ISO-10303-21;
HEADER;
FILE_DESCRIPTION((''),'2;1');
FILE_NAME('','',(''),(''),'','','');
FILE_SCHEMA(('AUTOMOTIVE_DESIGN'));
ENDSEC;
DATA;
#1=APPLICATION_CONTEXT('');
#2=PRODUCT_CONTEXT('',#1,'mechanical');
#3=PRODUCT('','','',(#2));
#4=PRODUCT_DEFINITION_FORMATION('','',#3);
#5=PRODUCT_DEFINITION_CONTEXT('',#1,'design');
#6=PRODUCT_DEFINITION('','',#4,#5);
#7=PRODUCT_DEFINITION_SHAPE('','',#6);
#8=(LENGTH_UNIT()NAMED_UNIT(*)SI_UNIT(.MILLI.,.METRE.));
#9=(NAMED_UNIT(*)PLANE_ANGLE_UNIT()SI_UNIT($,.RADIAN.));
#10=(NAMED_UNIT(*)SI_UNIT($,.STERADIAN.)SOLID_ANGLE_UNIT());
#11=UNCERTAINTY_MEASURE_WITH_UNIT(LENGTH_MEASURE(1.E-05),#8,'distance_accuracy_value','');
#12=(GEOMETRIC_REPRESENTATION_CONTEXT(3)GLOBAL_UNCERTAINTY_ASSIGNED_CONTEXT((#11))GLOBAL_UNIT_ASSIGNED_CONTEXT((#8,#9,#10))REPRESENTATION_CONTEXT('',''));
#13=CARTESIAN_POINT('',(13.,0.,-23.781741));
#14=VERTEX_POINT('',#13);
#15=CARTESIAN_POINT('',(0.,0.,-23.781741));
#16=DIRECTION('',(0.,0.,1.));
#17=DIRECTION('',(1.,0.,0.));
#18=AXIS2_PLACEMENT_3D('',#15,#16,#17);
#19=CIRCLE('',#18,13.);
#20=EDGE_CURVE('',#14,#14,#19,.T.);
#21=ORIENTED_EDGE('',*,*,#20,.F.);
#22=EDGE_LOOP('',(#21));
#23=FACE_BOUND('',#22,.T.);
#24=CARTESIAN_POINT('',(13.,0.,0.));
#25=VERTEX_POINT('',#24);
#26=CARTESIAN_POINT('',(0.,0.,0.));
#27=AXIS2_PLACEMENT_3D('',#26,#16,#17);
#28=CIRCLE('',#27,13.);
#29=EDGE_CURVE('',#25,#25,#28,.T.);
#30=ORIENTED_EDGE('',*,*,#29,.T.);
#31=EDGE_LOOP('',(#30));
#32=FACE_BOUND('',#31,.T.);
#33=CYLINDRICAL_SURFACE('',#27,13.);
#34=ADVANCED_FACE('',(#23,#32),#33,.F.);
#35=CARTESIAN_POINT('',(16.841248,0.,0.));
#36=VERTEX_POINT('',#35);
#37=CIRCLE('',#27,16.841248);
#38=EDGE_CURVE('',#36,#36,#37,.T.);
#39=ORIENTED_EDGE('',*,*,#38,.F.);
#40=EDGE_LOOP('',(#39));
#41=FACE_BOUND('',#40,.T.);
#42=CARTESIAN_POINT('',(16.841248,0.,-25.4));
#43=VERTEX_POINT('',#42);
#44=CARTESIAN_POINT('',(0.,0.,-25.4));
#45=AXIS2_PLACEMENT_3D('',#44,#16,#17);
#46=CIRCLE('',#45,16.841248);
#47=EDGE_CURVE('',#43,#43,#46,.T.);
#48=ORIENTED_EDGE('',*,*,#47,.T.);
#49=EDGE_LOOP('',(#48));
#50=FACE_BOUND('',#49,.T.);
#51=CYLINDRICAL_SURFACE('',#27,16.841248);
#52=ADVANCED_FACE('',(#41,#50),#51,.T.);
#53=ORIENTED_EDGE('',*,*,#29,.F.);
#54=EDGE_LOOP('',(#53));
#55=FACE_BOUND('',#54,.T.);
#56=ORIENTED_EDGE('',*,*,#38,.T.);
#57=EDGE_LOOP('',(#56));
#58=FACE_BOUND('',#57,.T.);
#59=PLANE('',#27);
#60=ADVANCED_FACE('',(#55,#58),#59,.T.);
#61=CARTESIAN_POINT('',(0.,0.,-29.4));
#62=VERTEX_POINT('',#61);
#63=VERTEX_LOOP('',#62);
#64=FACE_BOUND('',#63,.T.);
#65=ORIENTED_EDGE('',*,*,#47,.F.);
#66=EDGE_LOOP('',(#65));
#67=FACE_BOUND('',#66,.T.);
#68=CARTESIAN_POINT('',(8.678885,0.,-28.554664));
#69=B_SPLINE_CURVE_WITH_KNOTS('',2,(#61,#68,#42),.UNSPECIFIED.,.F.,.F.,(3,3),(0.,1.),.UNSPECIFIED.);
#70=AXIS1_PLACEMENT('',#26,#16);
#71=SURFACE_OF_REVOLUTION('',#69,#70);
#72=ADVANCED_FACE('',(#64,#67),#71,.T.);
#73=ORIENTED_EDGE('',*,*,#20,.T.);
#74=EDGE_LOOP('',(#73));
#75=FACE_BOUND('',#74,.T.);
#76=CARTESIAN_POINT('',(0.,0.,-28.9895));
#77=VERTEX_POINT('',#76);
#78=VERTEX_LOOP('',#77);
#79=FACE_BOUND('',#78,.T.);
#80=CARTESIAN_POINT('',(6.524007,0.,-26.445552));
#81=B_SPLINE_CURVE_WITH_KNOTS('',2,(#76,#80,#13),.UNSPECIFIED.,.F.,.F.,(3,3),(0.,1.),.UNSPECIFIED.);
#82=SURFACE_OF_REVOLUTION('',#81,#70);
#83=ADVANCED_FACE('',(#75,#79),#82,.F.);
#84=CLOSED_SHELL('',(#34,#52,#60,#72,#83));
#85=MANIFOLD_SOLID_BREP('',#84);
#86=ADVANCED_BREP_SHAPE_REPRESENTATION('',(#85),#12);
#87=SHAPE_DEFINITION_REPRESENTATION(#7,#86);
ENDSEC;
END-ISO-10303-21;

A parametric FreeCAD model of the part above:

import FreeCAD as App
import Part
import Sketcher

doc = App.newDocument("Part")
body = doc.addObject("PartDesign::Body", "Body")

sketch1 = body.newObject("Sketcher::SketchObject", "Sketch")
sketch1.AttachmentSupport = (doc.getObject("XZ_Plane"), [""])
sketch1.MapMode = "FlatFace"
sketch1.addGeometry(Part.BSplineCurve([App.Vector(0, -29.4, 0), App.Vector(8.678885, -28.554664, 0), App.Vector(16.841248, -25.4, 0)], [3, 3], [0, 1], False, 2, [1, 1, 1], False), False)
sketch1.addGeometry(Part.LineSegment(App.Vector(0, -29.4, 0), App.Vector(0, -28.9895, 0)), False)
sketch1.addGeometry(Part.BSplineCurve([App.Vector(0, -28.9895, 0), App.Vector(6.524007, -26.445552, 0), App.Vector(13, -23.781741, 0)], [3, 3], [0, 1], False, 2, [1, 1, 1], False), False)
sketch1.addGeometry(Part.LineSegment(App.Vector(13, -23.781741, 0), App.Vector(13, 0, 0)), False)
sketch1.addGeometry(Part.LineSegment(App.Vector(13, 0, 0), App.Vector(16.841248, 0, 0)), False)
sketch1.addGeometry(Part.LineSegment(App.Vector(16.841248, 0, 0), App.Vector(16.841248, -25.4, 0)), False)
sketch1.addConstraint(Sketcher.Constraint("Block", 0))
sketch1.addConstraint(Sketcher.Constraint("Block", 2))
sketch1.addConstraint(Sketcher.Constraint("Coincident", 0, 1, 1, 1))
sketch1.addConstraint(Sketcher.Constraint("Coincident", 1, 2, 2, 1))
sketch1.addConstraint(Sketcher.Constraint("Coincident", 2, 2, 3, 1))
sketch1.addConstraint(Sketcher.Constraint("Coincident", 3, 2, 4, 1))
sketch1.addConstraint(Sketcher.Constraint("Coincident", 4, 2, 5, 1))
sketch1.addConstraint(Sketcher.Constraint("Coincident", 5, 2, 0, 2))
sketch1.addConstraint(Sketcher.Constraint("Vertical", 3))
sketch1.addConstraint(Sketcher.Constraint("Horizontal", 4))
sketch1.addConstraint(Sketcher.Constraint("Vertical", 5))
sketch1.addConstraint(Sketcher.Constraint("PointOnObject", 3, 2, -1))
revolution = body.newObject("PartDesign::Revolution", "Revolution")
revolution.Profile = sketch1
revolution.ReferenceAxis = (sketch1, ["V_Axis"])
revolution.Angle = 360

doc.recompute()
